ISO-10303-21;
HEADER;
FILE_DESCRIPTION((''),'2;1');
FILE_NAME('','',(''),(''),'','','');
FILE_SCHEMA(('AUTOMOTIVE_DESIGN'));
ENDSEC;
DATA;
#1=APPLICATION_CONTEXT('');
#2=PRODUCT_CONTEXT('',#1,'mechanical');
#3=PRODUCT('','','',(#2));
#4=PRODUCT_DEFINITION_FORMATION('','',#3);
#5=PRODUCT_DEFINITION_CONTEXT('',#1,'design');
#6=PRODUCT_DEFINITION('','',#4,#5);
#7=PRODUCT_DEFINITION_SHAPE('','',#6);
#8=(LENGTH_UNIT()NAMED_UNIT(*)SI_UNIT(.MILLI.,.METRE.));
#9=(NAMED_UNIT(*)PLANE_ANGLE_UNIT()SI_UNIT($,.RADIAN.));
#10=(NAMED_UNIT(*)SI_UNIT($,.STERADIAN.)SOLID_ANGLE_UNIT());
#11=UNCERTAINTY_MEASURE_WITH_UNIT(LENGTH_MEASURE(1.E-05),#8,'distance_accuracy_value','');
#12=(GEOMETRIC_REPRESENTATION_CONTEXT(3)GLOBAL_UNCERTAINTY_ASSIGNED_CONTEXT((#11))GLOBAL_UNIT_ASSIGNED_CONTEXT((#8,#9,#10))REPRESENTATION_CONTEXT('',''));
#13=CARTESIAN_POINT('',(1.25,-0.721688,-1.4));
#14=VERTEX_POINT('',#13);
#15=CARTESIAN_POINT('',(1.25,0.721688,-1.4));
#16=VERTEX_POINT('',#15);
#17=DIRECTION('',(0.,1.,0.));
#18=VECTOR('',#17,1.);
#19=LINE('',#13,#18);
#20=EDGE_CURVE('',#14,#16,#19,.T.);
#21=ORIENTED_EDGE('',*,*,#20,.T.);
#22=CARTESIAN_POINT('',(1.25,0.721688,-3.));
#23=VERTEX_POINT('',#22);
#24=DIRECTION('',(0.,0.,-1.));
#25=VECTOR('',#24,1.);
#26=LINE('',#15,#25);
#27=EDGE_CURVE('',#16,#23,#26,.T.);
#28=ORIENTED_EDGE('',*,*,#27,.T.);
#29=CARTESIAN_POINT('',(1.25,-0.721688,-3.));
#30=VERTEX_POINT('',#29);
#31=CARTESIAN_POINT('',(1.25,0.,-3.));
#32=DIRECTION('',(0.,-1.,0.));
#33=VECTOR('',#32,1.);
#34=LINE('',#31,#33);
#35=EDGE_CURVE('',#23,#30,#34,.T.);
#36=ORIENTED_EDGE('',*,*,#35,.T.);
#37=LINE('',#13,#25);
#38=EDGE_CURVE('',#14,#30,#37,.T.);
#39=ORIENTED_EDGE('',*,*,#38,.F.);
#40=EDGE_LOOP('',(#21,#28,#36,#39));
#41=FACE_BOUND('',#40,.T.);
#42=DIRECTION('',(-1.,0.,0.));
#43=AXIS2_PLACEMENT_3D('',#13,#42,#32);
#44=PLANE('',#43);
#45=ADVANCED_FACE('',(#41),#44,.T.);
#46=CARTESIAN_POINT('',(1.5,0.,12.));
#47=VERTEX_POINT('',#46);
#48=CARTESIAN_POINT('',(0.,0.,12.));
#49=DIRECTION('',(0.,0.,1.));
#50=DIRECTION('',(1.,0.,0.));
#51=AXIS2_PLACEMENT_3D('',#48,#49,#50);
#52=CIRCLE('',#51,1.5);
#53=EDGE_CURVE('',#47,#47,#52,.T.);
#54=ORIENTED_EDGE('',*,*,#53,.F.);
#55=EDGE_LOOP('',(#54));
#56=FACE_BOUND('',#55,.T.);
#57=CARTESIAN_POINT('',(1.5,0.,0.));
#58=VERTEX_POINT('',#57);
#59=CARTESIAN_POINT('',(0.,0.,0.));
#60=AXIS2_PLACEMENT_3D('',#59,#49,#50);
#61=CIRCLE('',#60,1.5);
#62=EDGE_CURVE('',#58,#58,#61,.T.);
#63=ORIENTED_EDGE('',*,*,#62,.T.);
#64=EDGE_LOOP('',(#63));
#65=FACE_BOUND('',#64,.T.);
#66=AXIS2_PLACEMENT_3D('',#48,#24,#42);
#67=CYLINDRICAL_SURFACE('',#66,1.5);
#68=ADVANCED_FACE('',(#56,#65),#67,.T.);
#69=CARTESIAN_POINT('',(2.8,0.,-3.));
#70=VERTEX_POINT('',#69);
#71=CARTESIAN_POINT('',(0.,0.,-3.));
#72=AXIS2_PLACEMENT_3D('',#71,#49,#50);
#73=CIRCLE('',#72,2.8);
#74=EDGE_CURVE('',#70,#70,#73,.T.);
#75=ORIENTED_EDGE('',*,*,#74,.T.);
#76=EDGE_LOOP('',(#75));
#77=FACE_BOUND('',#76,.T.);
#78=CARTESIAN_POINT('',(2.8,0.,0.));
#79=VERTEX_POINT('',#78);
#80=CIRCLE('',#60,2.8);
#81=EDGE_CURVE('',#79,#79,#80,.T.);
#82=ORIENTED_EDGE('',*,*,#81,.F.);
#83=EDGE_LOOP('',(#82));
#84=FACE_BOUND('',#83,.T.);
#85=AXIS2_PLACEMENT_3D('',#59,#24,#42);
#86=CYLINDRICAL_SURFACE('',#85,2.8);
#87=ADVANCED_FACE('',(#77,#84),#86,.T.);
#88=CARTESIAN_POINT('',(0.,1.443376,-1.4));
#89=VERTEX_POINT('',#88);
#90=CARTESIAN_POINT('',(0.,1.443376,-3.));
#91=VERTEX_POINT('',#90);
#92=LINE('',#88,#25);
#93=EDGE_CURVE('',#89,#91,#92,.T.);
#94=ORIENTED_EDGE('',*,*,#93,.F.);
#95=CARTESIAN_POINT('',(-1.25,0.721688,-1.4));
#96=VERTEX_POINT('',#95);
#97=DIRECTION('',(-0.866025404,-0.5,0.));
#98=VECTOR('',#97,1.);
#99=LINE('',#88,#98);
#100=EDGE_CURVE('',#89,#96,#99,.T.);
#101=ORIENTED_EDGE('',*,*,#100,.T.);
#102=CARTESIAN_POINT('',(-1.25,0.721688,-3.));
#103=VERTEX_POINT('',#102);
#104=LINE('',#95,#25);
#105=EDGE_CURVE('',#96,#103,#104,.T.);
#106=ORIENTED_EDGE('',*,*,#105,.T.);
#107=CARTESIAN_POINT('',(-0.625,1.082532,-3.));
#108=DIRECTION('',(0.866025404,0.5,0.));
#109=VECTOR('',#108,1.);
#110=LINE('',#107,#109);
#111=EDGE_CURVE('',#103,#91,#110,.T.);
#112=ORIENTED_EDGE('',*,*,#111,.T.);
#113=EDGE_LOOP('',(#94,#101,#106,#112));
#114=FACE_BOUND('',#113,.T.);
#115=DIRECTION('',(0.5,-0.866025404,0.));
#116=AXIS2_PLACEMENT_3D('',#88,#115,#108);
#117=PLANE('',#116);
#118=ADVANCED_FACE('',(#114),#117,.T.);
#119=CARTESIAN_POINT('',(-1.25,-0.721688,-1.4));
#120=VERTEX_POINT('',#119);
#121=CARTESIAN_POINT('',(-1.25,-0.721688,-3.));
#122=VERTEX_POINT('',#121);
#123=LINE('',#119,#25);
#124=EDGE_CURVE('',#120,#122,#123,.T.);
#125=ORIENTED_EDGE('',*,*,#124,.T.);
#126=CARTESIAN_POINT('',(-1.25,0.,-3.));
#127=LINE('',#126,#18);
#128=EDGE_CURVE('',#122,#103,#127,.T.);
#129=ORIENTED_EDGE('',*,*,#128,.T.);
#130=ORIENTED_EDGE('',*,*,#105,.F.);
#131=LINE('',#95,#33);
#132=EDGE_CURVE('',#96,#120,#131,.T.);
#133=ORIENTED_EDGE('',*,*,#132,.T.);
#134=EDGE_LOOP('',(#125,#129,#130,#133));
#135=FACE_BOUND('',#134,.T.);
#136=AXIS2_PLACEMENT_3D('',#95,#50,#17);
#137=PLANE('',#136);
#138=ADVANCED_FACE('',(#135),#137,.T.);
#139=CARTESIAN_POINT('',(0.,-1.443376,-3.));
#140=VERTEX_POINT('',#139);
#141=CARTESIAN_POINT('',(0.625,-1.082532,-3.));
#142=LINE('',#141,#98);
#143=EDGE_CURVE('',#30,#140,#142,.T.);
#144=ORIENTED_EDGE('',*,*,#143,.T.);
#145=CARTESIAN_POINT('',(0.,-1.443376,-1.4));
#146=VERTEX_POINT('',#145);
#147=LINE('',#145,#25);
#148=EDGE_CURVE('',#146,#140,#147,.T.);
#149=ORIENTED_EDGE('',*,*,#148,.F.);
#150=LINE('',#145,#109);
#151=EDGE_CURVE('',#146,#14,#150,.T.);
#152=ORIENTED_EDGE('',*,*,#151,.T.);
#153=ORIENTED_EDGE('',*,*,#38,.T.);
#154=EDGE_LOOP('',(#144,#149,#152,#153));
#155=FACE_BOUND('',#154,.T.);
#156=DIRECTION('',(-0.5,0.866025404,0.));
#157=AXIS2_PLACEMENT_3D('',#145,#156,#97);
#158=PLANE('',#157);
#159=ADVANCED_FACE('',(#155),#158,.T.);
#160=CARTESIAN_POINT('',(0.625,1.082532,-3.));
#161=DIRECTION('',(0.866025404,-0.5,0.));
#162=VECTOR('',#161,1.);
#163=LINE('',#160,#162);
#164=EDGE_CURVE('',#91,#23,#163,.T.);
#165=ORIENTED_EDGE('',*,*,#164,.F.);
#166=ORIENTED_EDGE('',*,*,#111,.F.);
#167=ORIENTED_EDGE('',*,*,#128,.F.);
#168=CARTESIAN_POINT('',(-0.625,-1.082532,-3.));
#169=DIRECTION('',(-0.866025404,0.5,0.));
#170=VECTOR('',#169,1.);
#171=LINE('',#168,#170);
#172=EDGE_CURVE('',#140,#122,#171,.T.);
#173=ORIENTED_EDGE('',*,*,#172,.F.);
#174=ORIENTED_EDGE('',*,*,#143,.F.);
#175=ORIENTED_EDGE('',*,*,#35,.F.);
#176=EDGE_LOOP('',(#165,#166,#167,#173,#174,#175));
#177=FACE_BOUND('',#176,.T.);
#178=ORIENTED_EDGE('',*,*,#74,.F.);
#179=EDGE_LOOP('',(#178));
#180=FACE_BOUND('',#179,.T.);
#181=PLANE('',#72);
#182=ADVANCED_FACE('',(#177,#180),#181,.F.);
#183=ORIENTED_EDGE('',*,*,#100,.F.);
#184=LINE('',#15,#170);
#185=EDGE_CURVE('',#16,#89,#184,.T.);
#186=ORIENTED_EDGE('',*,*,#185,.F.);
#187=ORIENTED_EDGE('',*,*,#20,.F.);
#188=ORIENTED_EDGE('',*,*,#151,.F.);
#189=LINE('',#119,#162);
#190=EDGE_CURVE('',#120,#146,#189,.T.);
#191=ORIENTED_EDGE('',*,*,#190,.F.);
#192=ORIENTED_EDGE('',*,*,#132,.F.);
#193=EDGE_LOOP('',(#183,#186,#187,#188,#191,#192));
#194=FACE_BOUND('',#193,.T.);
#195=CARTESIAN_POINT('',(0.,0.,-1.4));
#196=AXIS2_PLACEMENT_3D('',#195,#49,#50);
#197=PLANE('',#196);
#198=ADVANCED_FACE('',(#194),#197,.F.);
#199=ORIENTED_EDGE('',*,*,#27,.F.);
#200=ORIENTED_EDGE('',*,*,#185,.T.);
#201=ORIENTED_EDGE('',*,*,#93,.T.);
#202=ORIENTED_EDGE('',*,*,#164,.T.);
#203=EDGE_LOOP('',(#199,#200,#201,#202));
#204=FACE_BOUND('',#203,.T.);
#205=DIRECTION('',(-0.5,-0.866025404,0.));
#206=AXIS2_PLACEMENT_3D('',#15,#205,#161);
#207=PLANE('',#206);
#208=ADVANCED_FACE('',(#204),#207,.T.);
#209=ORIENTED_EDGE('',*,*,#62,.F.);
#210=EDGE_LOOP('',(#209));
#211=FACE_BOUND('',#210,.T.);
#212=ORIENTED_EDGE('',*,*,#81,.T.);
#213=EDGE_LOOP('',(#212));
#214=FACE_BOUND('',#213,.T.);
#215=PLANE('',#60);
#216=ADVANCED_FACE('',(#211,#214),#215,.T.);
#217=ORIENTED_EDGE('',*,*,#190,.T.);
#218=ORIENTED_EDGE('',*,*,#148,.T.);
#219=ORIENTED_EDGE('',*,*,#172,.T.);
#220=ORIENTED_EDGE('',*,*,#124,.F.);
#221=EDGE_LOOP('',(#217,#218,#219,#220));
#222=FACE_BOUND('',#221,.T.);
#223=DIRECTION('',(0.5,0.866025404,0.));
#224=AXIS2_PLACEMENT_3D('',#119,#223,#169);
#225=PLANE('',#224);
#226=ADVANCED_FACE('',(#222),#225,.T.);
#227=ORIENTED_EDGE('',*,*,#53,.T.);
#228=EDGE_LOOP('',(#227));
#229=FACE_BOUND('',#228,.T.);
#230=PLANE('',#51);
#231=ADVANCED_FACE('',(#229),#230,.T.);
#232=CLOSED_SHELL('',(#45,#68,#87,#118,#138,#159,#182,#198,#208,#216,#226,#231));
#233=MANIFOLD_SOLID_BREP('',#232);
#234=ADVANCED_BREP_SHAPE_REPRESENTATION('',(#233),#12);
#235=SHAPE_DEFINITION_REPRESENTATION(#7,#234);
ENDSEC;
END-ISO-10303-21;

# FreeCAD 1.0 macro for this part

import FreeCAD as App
import Part
import Sketcher

V = App.Vector
Q = App.Units.Quantity

doc = App.newDocument("Part")
body = doc.addObject("PartDesign::Body", "Body")

sketch1 = body.newObject("Sketcher::SketchObject", "Sketch")
sketch1.AttachmentSupport = (doc.getObject("XY_Plane"), [""])
sketch1.MapMode = "FlatFace"
sketch1.AttachmentOffset = App.Placement(V(0, 0, -3), App.Rotation())
sketch1.addGeometry(Part.Circle(V(0, 0, 0), V(0, 0, 1), 2.8), False)
sketch1.addConstraint(Sketcher.Constraint("Coincident", 0, 3, -1, 1))
sketch1.addConstraint(Sketcher.Constraint("Diameter", 0, Q("5.6 mm")))
pad1 = body.newObject("PartDesign::Pad", "Pad")
pad1.Profile = sketch1
pad1.Length = 3

sketch2 = body.newObject("Sketcher::SketchObject", "Sketch001")
sketch2.AttachmentSupport = (doc.getObject("XY_Plane"), [""])
sketch2.MapMode = "FlatFace"
sketch2.addGeometry(Part.Circle(V(0, 0, 0), V(0, 0, 1), 1.5), False)
sketch2.addConstraint(Sketcher.Constraint("Coincident", 0, 3, -1, 1))
sketch2.addConstraint(Sketcher.Constraint("Diameter", 0, Q("3 mm")))
pad2 = body.newObject("PartDesign::Pad", "Pad001")
pad2.Profile = sketch2
pad2.Length = 12

sketch3 = body.newObject("Sketcher::SketchObject", "Sketch002")
sketch3.AttachmentSupport = (doc.getObject("XY_Plane"), [""])
sketch3.MapMode = "FlatFace"
sketch3.AttachmentOffset = App.Placement(V(0, 0, -3.2), App.Rotation())
sketch3.addGeometry(Part.LineSegment(V(1.2, 0.7, 0), V(0, 1.4, 0)), False)
sketch3.addGeometry(Part.LineSegment(V(0, 1.4, 0), V(-1.2, 0.7, 0)), False)
sketch3.addGeometry(Part.LineSegment(V(-1.2, 0.7, 0), V(-1.2, -0.7, 0)), False)
sketch3.addGeometry(Part.LineSegment(V(-1.2, -0.7, 0), V(0, -1.4, 0)), False)
sketch3.addGeometry(Part.LineSegment(V(0, -1.4, 0), V(1.2, -0.7, 0)), False)
sketch3.addGeometry(Part.LineSegment(V(1.2, -0.7, 0), V(1.2, 0.7, 0)), False)
sketch3.addConstraint(Sketcher.Constraint("Coincident", 0, 2, 1, 1))
sketch3.addConstraint(Sketcher.Constraint("Coincident", 1, 2, 2, 1))
sketch3.addConstraint(Sketcher.Constraint("Coincident", 2, 2, 3, 1))
sketch3.addConstraint(Sketcher.Constraint("Coincident", 3, 2, 4, 1))
sketch3.addConstraint(Sketcher.Constraint("Coincident", 4, 2, 5, 1))
sketch3.addConstraint(Sketcher.Constraint("Coincident", 5, 2, 0, 1))
sketch3.addConstraint(Sketcher.Constraint("Vertical", 2))
sketch3.addConstraint(Sketcher.Constraint("Vertical", 5))
sketch3.addConstraint(Sketcher.Constraint("Symmetric", 0, 2, 3, 2, -1, 1))
sketch3.addConstraint(Sketcher.Constraint("Symmetric", 1, 2, 4, 2, -1, 1))
sketch3.addConstraint(Sketcher.Constraint("PointOnObject", 0, 2, -2))
sketch3.addConstraint(Sketcher.Constraint("Parallel", 0, 3))
sketch3.addConstraint(Sketcher.Constraint("Horizontal", 2, 2, 4, 2))
sketch3.addConstraint(Sketcher.Constraint("Angle", 0, Q("150 deg")))
sketch3.addConstraint(Sketcher.Constraint("DistanceX", 2, 2, 4, 2, Q("2.5 mm")))
sketch3.addConstraint(Sketcher.Constraint("DistanceY", 2, 2, 2, 1, Q("1.443376 mm")))
pocket1 = body.newObject("PartDesign::Pocket", "Pocket")
pocket1.Profile = sketch3
pocket1.Length = 1.8
pocket1.Reversed = True

doc.recompute()
